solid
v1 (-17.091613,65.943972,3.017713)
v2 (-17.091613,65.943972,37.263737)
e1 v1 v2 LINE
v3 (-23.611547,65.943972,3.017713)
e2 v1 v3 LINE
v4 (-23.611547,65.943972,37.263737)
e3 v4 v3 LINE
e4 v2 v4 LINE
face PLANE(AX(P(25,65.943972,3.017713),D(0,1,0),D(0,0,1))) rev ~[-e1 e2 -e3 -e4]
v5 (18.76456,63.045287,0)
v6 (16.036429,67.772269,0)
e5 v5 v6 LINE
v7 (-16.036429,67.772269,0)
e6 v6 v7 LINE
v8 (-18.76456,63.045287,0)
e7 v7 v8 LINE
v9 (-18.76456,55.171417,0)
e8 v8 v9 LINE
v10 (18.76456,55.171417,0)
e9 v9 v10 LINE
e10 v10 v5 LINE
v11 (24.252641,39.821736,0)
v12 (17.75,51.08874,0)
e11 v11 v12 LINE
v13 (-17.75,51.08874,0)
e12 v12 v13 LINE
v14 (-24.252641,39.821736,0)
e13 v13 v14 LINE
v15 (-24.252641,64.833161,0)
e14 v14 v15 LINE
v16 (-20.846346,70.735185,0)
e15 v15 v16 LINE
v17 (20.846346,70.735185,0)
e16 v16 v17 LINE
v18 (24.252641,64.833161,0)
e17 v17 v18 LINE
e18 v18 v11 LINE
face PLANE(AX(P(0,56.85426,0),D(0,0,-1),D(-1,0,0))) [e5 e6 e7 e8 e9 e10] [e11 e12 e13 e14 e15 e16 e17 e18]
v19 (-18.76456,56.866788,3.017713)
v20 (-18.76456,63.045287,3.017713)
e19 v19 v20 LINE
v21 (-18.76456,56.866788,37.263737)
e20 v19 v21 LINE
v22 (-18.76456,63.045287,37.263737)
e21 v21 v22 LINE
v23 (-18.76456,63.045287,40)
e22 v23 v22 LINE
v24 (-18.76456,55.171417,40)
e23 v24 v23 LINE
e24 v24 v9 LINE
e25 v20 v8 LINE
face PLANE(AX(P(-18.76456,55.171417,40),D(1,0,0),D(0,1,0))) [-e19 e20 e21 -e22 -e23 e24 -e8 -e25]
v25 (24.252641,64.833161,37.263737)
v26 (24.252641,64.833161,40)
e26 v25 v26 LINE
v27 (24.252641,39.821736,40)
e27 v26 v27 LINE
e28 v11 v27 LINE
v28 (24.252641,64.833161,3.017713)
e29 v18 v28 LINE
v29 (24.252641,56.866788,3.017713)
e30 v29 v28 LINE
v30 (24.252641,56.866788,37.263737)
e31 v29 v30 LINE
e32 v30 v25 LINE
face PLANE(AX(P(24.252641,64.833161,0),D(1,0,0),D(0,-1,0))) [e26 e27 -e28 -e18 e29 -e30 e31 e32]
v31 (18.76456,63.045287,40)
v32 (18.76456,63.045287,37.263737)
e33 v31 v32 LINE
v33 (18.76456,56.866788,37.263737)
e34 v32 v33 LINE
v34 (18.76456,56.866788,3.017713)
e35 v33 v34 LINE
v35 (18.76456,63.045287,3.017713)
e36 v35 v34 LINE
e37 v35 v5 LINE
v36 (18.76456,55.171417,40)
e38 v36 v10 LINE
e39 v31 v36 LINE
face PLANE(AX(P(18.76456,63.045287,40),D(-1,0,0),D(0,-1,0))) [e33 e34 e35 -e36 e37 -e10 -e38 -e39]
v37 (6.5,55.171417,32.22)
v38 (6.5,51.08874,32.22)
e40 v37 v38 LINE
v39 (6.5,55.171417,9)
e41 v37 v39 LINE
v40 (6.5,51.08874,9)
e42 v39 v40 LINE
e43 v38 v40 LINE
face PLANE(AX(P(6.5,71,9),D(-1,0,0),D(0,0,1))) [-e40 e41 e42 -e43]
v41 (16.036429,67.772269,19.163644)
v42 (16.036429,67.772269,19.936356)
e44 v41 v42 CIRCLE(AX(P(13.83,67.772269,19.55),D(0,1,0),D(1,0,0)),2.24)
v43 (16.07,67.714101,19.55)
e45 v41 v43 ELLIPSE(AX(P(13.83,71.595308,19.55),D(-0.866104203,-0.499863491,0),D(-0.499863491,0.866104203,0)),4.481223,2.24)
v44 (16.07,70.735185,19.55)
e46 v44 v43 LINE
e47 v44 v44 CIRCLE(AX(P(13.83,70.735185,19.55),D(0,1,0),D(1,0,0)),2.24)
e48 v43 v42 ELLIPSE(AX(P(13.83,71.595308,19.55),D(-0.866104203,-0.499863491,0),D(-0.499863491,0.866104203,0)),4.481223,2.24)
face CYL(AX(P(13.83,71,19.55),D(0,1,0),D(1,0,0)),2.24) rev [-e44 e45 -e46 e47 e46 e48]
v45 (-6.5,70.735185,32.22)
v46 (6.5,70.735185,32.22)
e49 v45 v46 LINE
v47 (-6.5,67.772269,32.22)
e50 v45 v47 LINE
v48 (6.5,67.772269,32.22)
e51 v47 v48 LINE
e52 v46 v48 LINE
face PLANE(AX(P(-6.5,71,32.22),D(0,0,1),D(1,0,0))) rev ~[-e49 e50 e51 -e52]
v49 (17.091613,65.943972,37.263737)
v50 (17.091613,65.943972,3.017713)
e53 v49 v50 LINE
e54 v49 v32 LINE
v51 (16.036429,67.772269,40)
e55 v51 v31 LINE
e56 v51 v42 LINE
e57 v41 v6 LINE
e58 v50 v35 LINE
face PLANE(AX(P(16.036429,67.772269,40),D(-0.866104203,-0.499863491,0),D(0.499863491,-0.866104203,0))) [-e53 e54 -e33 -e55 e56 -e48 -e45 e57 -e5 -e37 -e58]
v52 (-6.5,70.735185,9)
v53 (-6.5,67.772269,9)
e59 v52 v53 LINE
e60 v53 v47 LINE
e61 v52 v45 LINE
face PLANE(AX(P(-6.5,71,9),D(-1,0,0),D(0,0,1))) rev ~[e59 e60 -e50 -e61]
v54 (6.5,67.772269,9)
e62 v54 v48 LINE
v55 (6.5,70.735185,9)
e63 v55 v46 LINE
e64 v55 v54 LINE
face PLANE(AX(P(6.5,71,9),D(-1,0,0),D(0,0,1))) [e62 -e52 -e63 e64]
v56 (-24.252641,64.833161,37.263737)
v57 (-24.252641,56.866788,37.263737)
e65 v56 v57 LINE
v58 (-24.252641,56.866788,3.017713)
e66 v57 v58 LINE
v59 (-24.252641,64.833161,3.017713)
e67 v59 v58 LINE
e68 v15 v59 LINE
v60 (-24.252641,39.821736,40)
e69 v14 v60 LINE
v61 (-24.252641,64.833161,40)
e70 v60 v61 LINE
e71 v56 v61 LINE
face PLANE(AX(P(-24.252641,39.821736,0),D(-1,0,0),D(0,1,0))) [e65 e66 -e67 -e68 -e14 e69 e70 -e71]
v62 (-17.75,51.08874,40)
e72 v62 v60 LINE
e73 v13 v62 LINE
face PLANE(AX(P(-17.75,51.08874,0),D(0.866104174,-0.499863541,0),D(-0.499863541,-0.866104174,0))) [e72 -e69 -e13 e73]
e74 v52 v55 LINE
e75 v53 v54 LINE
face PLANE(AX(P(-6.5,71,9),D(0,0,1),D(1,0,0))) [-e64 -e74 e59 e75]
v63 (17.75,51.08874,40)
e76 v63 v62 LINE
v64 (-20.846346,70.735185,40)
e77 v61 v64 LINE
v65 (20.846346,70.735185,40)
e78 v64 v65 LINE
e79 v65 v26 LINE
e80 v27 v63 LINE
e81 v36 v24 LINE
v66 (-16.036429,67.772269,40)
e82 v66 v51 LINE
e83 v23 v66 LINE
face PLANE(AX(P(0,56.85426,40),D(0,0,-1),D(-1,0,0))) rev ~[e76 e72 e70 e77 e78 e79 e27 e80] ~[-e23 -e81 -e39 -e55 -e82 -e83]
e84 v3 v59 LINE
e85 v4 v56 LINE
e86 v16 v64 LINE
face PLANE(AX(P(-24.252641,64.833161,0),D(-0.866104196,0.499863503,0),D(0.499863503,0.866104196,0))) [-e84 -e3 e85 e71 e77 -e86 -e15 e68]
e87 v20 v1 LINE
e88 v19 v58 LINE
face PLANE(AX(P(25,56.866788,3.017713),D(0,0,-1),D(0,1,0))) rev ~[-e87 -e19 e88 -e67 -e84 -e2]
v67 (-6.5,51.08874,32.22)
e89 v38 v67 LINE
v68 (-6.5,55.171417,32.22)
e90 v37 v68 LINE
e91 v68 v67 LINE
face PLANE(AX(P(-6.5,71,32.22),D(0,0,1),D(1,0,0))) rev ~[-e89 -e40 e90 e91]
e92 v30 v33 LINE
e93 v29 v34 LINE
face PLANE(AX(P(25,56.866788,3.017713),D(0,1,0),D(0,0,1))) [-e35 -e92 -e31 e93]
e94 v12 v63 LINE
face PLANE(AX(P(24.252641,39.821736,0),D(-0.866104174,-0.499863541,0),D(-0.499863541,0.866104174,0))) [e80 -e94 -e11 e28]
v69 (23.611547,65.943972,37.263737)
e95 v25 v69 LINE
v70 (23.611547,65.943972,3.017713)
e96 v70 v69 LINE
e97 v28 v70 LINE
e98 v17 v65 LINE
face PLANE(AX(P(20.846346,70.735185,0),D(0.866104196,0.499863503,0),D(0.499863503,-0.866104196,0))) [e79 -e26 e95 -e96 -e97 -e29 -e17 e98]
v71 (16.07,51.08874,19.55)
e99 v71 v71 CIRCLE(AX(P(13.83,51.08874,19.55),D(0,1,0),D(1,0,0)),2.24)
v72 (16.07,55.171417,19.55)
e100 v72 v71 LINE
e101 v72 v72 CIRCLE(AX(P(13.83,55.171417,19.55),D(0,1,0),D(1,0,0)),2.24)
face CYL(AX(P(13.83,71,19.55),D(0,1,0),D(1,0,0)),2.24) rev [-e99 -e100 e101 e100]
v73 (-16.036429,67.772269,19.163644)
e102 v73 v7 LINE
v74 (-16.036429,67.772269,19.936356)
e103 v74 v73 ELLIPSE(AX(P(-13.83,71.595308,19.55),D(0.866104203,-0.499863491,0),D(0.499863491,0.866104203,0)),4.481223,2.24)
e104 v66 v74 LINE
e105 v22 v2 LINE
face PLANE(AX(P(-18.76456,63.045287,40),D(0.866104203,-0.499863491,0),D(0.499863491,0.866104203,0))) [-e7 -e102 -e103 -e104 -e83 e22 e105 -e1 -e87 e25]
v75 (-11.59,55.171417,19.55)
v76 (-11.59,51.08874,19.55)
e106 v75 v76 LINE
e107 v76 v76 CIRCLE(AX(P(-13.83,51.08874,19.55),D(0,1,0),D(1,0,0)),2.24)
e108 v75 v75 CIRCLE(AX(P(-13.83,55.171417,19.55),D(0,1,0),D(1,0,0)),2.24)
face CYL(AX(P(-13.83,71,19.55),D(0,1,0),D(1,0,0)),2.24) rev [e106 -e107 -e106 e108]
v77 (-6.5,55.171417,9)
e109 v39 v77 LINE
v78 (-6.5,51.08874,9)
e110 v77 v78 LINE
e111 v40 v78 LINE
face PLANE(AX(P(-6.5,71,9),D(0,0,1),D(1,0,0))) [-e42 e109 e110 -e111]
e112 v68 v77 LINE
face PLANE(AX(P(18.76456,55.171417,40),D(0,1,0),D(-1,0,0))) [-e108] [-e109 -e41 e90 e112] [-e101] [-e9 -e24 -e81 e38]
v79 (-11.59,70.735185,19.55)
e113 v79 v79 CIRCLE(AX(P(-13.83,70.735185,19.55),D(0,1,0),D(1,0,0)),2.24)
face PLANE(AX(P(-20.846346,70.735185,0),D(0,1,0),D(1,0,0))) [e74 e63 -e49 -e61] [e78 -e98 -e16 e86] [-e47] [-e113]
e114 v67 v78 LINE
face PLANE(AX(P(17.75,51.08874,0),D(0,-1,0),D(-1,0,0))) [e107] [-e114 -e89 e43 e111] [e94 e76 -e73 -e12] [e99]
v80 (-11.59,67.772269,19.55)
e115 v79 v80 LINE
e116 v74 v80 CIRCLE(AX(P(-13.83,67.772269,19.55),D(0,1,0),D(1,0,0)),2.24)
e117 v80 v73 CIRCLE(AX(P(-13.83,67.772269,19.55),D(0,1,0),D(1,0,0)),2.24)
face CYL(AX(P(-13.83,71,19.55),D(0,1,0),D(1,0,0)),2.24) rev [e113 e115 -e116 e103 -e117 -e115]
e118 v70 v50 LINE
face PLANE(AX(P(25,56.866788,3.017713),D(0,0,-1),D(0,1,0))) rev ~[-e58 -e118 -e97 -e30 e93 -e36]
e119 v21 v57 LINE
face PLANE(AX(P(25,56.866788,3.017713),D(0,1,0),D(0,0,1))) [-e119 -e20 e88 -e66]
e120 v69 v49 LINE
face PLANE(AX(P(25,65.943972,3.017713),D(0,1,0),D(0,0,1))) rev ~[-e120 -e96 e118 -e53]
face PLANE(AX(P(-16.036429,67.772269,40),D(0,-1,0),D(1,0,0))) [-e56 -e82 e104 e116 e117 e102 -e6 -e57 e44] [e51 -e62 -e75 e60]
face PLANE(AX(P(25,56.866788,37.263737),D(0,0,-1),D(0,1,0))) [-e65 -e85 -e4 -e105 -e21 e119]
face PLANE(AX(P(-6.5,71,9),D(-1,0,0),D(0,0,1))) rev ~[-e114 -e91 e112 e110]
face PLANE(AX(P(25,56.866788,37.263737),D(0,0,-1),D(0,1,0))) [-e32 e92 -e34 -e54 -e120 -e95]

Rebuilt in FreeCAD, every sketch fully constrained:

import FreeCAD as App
import Part
import Sketcher

V = App.Vector

doc = App.newDocument("Part")
body = doc.addObject("PartDesign::Body", "Body")

# Sketch on XY plane
sketch1 = body.newObject("Sketcher::SketchObject", "Sketch")
sketch1.AttachmentSupport = (doc.getObject("XY_Plane"), [""])
sketch1.MapMode = "FlatFace"
sketch1.addGeometry(Part.LineSegment(V(21, 71, 0), V(-21, 71, 0)), False)
sketch1.addGeometry(Part.LineSegment(V(-21, 71, 0), V(-24, 65, 0)), False)
sketch1.addGeometry(Part.LineSegment(V(-24, 65, 0), V(-24, 40, 0)), False)
sketch1.addGeometry(Part.LineSegment(V(-24, 40, 0), V(-18, 51, 0)), False)
sketch1.addGeometry(Part.LineSegment(V(-18, 51, 0), V(18, 51, 0)), False)
sketch1.addGeometry(Part.LineSegment(V(18, 51, 0), V(24, 40, 0)), False)
sketch1.addGeometry(Part.LineSegment(V(24, 40, 0), V(24, 65, 0)), False)
sketch1.addGeometry(Part.LineSegment(V(24, 65, 0), V(21, 71, 0)), False)
sketch1.addConstraint(Sketcher.Constraint("Coincident", 0, 2, 1, 1))
sketch1.addConstraint(Sketcher.Constraint("Coincident", 1, 2, 2, 1))
sketch1.addConstraint(Sketcher.Constraint("Coincident", 2, 2, 3, 1))
sketch1.addConstraint(Sketcher.Constraint("Coincident", 3, 2, 4, 1))
sketch1.addConstraint(Sketcher.Constraint("Coincident", 4, 2, 5, 1))
sketch1.addConstraint(Sketcher.Constraint("Coincident", 5, 2, 6, 1))
sketch1.addConstraint(Sketcher.Constraint("Coincident", 6, 2, 7, 1))
sketch1.addConstraint(Sketcher.Constraint("Coincident", 7, 2, 0, 1))
sketch1.addConstraint(Sketcher.Constraint("Horizontal", 0))
sketch1.addConstraint(Sketcher.Constraint("Vertical", 2))
sketch1.addConstraint(Sketcher.Constraint("Horizontal", 4))
sketch1.addConstraint(Sketcher.Constraint("Vertical", 6))
sketch1.addConstraint(Sketcher.Constraint("Symmetric", 2, 2, 5, 2, -2))
sketch1.addConstraint(Sketcher.Constraint("Parallel", 1, 3))
sketch1.addConstraint(Sketcher.Constraint("Parallel", 5, 7))
sketch1.addConstraint(Sketcher.Constraint("Horizontal", 1, 2, 6, 2))
sketch1.addConstraint(Sketcher.Constraint("Equal", 3, 5))
sketch1.addConstraint(Sketcher.Constraint("DistanceX", 4, 1, 4, 2, 35.5))
sketch1.addConstraint(Sketcher.Constraint("Distance", 1, 6.81445))
sketch1.addConstraint(Sketcher.Constraint("DistanceX", 0, 2, 0, 1, 41.692692))
sketch1.addConstraint(Sketcher.Constraint("DistanceY", 2, 2, 2, 1, 25.011425))
sketch1.addConstraint(Sketcher.Constraint("DistanceX", 1, 2, -1, 1, 24.252641))
sketch1.addConstraint(Sketcher.Constraint("DistanceY", -1, 1, 1, 2, 64.833161))
pad1 = body.newObject("PartDesign::Pad", "Pad")
pad1.Profile = sketch1
pad1.Length = 40

# Sketch on XZ plane
sketch2 = body.newObject("Sketcher::SketchObject", "Sketch001")
sketch2.AttachmentSupport = (doc.getObject("XZ_Plane"), [""])
sketch2.MapMode = "FlatFace"
sketch2.AttachmentOffset = App.Placement(V(0, 0, -71), App.Rotation())
sketch2.addGeometry(Part.LineSegment(V(-6, 32, 0), V(-6, 9, 0)), False)
sketch2.addGeometry(Part.LineSegment(V(-6, 9, 0), V(6, 9, 0)), False)
sketch2.addGeometry(Part.LineSegment(V(6, 9, 0), V(6, 32, 0)), False)
sketch2.addGeometry(Part.LineSegment(V(6, 32, 0), V(-6, 32, 0)), False)
sketch2.addConstraint(Sketcher.Constraint("Coincident", 0, 2, 1, 1))
sketch2.addConstraint(Sketcher.Constraint("Coincident", 1, 2, 2, 1))
sketch2.addConstraint(Sketcher.Constraint("Coincident", 2, 2, 3, 1))
sketch2.addConstraint(Sketcher.Constraint("Coincident", 3, 2, 0, 1))
sketch2.addConstraint(Sketcher.Constraint("Vertical", 0))
sketch2.addConstraint(Sketcher.Constraint("Horizontal", 1))
sketch2.addConstraint(Sketcher.Constraint("Vertical", 2))
sketch2.addConstraint(Sketcher.Constraint("Horizontal", 3))
sketch2.addConstraint(Sketcher.Constraint("DistanceX", 1, 1, 1, 2, 13.0))
sketch2.addConstraint(Sketcher.Constraint("DistanceY", -1, 1, 0, 2, 9.0))
sketch2.addConstraint(Sketcher.Constraint("DistanceY", 0, 2, 0, 1, 23.22))
sketch2.addConstraint(Sketcher.Constraint("DistanceX", 0, 2, -1, 1, 6.5))
pocket1 = body.newObject("PartDesign::Pocket", "Pocket")
pocket1.Profile = sketch2
pocket1.Type = "ThroughAll"
pocket1.Reversed = True

# Sketch on XY plane
sketch3 = body.newObject("Sketcher::SketchObject", "Sketch002")
sketch3.AttachmentSupport = (doc.getObject("XY_Plane"), [""])
sketch3.MapMode = "FlatFace"
sketch3.AttachmentOffset = App.Placement(V(0, 0, 40), App.Rotation())
sketch3.addGeometry(Part.LineSegment(V(16, 68, 0), V(-16, 68, 0)), False)
sketch3.addGeometry(Part.LineSegment(V(-16, 68, 0), V(-19, 63, 0)), False)
sketch3.addGeometry(Part.LineSegment(V(-19, 63, 0), V(-19, 55, 0)), False)
sketch3.addGeometry(Part.LineSegment(V(-19, 55, 0), V(19, 55, 0)), False)
sketch3.addGeometry(Part.LineSegment(V(19, 55, 0), V(19, 63, 0)), False)
sketch3.addGeometry(Part.LineSegment(V(19, 63, 0), V(16, 68, 0)), False)
sketch3.addConstraint(Sketcher.Constraint("Coincident", 0, 2, 1, 1))
sketch3.addConstraint(Sketcher.Constraint("Coincident", 1, 2, 2, 1))
sketch3.addConstraint(Sketcher.Constraint("Coincident", 2, 2, 3, 1))
sketch3.addConstraint(Sketcher.Constraint("Coincident", 3, 2, 4, 1))
sketch3.addConstraint(Sketcher.Constraint("Coincident", 4, 2, 5, 1))
sketch3.addConstraint(Sketcher.Constraint("Coincident", 5, 2, 0, 1))
sketch3.addConstraint(Sketcher.Constraint("Horizontal", 0))
sketch3.addConstraint(Sketcher.Constraint("Vertical", 2))
sketch3.addConstraint(Sketcher.Constraint("Horizontal", 3))
sketch3.addConstraint(Sketcher.Constraint("Vertical", 4))
sketch3.addConstraint(Sketcher.Constraint("Symmetric", 1, 2, 4, 2, -2))
sketch3.addConstraint(Sketcher.Constraint("Equal", 1, 5))
sketch3.addConstraint(Sketcher.Constraint("DistanceX", 3, 1, 3, 2, 37.52912))
sketch3.addConstraint(Sketcher.Constraint("DistanceY", 2, 2, 2, 1, 7.87387))
sketch3.addConstraint(Sketcher.Constraint("DistanceX", 0, 2, 0, 1, 32.072858))
sketch3.addConstraint(Sketcher.Constraint("DistanceY", -1, 1, 0, 2, 67.772269))
sketch3.addConstraint(Sketcher.Constraint("DistanceY", 1, 2, 0, 2, 4.726982))
pocket2 = body.newObject("PartDesign::Pocket", "Pocket001")
pocket2.Profile = sketch3
pocket2.Type = "ThroughAll"

# Sketch on YZ plane
sketch4 = body.newObject("Sketcher::SketchObject", "Sketch003")
sketch4.AttachmentSupport = (doc.getObject("YZ_Plane"), [""])
sketch4.MapMode = "FlatFace"
sketch4.AttachmentOffset = App.Placement(V(0, 0, 25), App.Rotation())
sketch4.addGeometry(Part.LineSegment(V(57, 37, 0), V(57, 3, 0)), False)
sketch4.addGeometry(Part.LineSegment(V(57, 3, 0), V(66, 3, 0)), False)
sketch4.addGeometry(Part.LineSegment(V(66, 3, 0), V(66, 37, 0)), False)
sketch4.addGeometry(Part.LineSegment(V(66, 37, 0), V(57, 37, 0)), False)
sketch4.addConstraint(Sketcher.Constraint("Coincident", 0, 2, 1, 1))
sketch4.addConstraint(Sketcher.Constraint("Coincident", 1, 2, 2, 1))
sketch4.addConstraint(Sketcher.Constraint("Coincident", 2, 2, 3, 1))
sketch4.addConstraint(Sketcher.Constraint("Coincident", 3, 2, 0, 1))
sketch4.addConstraint(Sketcher.Constraint("Vertical", 0))
sketch4.addConstraint(Sketcher.Constraint("Horizontal", 1))
sketch4.addConstraint(Sketcher.Constraint("Vertical", 2))
sketch4.addConstraint(Sketcher.Constraint("Horizontal", 3))
sketch4.addConstraint(Sketcher.Constraint("DistanceX", 1, 1, 1, 2, 9.077184))
sketch4.addConstraint(Sketcher.Constraint("DistanceY", 0, 2, 0, 1, 34.246025))
sketch4.addConstraint(Sketcher.Constraint("DistanceX", -1, 1, 0, 2, 56.866788))
sketch4.addConstraint(Sketcher.Constraint("DistanceY", -1, 1, 0, 2, 3.017713))
pocket3 = body.newObject("PartDesign::Pocket", "Pocket002")
pocket3.Profile = sketch4
pocket3.Type = "ThroughAll"

# Sketch on XZ plane
sketch5 = body.newObject("Sketcher::SketchObject", "Sketch004")
sketch5.AttachmentSupport = (doc.getObject("XZ_Plane"), [""])
sketch5.MapMode = "FlatFace"
sketch5.AttachmentOffset = App.Placement(V(0, 0, -71), App.Rotation())
sketch5.addGeometry(Part.Circle(V(-13.8, 19.6, 0), V(0, 0, 1), 2.2), False)
sketch5.addGeometry(Part.Circle(V(13.8, 19.6, 0), V(0, 0, 1), 2.2), False)
sketch5.addConstraint(Sketcher.Constraint("Equal", 0, 1))
sketch5.addConstraint(Sketcher.Constraint("Symmetric", 0, 3, 1, 3, -2))
sketch5.addConstraint(Sketcher.Constraint("Diameter", 0, 4.48))
sketch5.addConstraint(Sketcher.Constraint("DistanceX", 0, 3, -1, 1, 13.83))
sketch5.addConstraint(Sketcher.Constraint("DistanceY", -1, 1, 0, 3, 19.55))
pocket4 = body.newObject("PartDesign::Pocket", "Pocket003")
pocket4.Profile = sketch5
pocket4.Type = "ThroughAll"
pocket4.Reversed = True

doc.recompute()
